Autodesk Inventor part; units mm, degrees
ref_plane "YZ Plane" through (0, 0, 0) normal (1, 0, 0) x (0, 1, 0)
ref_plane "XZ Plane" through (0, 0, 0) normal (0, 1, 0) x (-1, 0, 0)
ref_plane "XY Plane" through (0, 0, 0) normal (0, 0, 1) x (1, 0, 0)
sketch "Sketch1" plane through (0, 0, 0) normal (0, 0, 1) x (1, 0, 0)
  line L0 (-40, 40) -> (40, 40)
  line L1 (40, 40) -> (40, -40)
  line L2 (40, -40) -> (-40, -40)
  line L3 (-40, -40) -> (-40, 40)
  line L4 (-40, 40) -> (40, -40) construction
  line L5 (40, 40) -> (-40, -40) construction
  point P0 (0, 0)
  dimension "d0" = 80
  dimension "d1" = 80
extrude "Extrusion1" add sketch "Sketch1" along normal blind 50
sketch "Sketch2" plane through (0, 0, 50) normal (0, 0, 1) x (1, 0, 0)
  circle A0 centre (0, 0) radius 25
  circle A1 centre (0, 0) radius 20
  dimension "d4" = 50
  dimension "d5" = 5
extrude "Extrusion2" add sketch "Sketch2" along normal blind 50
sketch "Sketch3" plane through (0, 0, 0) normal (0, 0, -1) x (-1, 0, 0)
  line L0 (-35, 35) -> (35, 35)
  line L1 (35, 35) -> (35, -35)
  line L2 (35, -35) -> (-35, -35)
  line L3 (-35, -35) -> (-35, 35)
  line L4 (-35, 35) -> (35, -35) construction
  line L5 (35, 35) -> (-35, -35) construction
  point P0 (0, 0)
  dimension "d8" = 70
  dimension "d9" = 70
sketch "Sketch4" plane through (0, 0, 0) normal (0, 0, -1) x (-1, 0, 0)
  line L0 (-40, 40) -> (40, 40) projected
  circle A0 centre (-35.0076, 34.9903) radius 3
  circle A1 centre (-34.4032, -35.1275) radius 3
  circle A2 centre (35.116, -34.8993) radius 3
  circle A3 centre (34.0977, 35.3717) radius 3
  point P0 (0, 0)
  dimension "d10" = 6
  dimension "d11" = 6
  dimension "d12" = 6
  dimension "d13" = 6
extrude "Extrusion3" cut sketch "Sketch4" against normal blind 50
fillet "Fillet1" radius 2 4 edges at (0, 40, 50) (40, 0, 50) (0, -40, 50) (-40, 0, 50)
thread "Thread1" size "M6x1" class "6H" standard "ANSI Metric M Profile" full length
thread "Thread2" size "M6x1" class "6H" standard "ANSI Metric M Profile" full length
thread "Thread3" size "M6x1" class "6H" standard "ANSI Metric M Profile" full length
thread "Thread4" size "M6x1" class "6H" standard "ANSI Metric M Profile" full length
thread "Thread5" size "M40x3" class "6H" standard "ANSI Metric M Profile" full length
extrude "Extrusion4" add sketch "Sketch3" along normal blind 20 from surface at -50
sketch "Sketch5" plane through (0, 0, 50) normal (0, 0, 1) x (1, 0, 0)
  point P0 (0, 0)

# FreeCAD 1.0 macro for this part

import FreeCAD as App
import Part
import Sketcher

V = App.Vector
Q = App.Units.Quantity


def edges_at(feature, points):
    """Names of the edges that pass closest to the given points."""
    edges = feature.Shape.Edges
    near = lambda p: min(range(len(edges)), key=lambda i: edges[i].distToShape(Part.Vertex(*p))[0])
    return sorted({f"Edge{near(p) + 1}" for p in points})


def add_polygon(sketch, points):
    """Adds a closed chain of lines whose ends are joined by coincident constraints."""
    first, n = sketch.GeometryCount, len(points)
    for a, b in zip(points, points[1:] + points[:1]):
        sketch.addGeometry(Part.LineSegment(App.Vector(*a, 0), App.Vector(*b, 0)), False)
    for i in range(n):
        sketch.addConstraint(Sketcher.Constraint("Coincident", first + i, 2, first + (i + 1) % n, 1))

doc = App.newDocument("Part")
params = doc.addObject("Spreadsheet::Sheet", "Params")
for row, (alias, value) in enumerate([
    ("sketch1_width", "80 mm"),
    ("pad1_length", "50 mm"),
    ("sketch2_diameter", "50 mm"),
    ("sketch2_diameter2", "40 mm"),
    ("pad2_length", "50 mm"),
    ("sketch3_diameter", "6 mm"),
    ("pocket1_length", "50 mm"),
    ("fillet_radius", "2 mm"),
    ("sketch4_width", "70 mm"),
    ("pad3_length", "20 mm"),
], start=1):
    params.set(f"A{row}", alias)
    params.set(f"B{row}", "=" + value)
    params.setAlias(f"B{row}", alias)

body = doc.addObject("PartDesign::Body", "Body")

# Sketch on XY plane
sketch1 = doc.addObject("Sketcher::SketchObject", "Sketch")
body.addObject(sketch1)
sketch1.AttachmentSupport = (doc.XY_Plane, [""])
sketch1.MapMode = "FlatFace"
add_polygon(sketch1, [(40, 40), (-40, 40), (-40, -40), (40, -40)])  # lines 0-3
sketch1.addConstraint(Sketcher.Constraint("Horizontal", 0))
sketch1.addConstraint(Sketcher.Constraint("Vertical", 1))
sketch1.addConstraint(Sketcher.Constraint("Horizontal", 2))
sketch1.addConstraint(Sketcher.Constraint("Vertical", 3))
sketch1.addConstraint(Sketcher.Constraint("Symmetric", 0, 2, 2, 2, -1, 1))
sketch1.addConstraint(Sketcher.Constraint("Equal", 2, 1))
sketch1.addConstraint(Sketcher.Constraint("DistanceX", 0, 2, 0, 1, Q("80 mm")))
sketch1.setExpression("Constraints[10]", "Params.sketch1_width")
pad1 = doc.addObject("PartDesign::Pad", "Pad")
body.addObject(pad1)
pad1.Profile = sketch1
pad1.setExpression("Length", "Params.pad1_length")

# Sketch on XY plane
sketch2 = doc.addObject("Sketcher::SketchObject", "Sketch001")
body.addObject(sketch2)
sketch2.AttachmentSupport = (doc.XY_Plane, [""])
sketch2.MapMode = "FlatFace"
sketch2.AttachmentOffset = App.Placement(V(0, 0, 50), App.Rotation())
sketch2.addGeometry(Part.Circle(V(0, 0, 0), V(0, 0, 1), 25), False)
sketch2.addGeometry(Part.Circle(V(0, 0, 0), V(0, 0, 1), 20), False)
sketch2.addConstraint(Sketcher.Constraint("Coincident", 0, 3, -1, 1))
sketch2.addConstraint(Sketcher.Constraint("Coincident", 1, 3, -1, 1))
sketch2.addConstraint(Sketcher.Constraint("Diameter", 0, Q("50 mm")))
sketch2.addConstraint(Sketcher.Constraint("Diameter", 1, Q("40 mm")))
sketch2.setExpression("Constraints[2]", "Params.sketch2_diameter")
sketch2.setExpression("Constraints[3]", "Params.sketch2_diameter2")
pad2 = doc.addObject("PartDesign::Pad", "Pad001")
body.addObject(pad2)
pad2.Profile = sketch2
pad2.setExpression("Length", "Params.pad2_length")

# Sketch on XY plane
sketch3 = doc.addObject("Sketcher::SketchObject", "Sketch002")
body.addObject(sketch3)
sketch3.AttachmentSupport = (doc.XY_Plane, [""])
sketch3.MapMode = "FlatFace"
sketch3.addGeometry(Part.Circle(V(35, 35, 0), V(0, 0, 1), 3), False)
sketch3.addGeometry(Part.Circle(V(34.4, -35.1, 0), V(0, 0, 1), 3), False)
sketch3.addGeometry(Part.Circle(V(-35.1, -34.9, 0), V(0, 0, 1), 3), False)
sketch3.addGeometry(Part.Circle(V(-34.1, 35.4, 0), V(0, 0, 1), 3), False)
sketch3.addConstraint(Sketcher.Constraint("Equal", 0, 1))
sketch3.addConstraint(Sketcher.Constraint("Equal", 1, 2))
sketch3.addConstraint(Sketcher.Constraint("Equal", 2, 3))
sketch3.addConstraint(Sketcher.Constraint("Diameter", 0, Q("6 mm")))
sketch3.addConstraint(Sketcher.Constraint("DistanceX", 2, 3, -1, 1, Q("35.116 mm")))
sketch3.addConstraint(Sketcher.Constraint("DistanceY", 2, 3, 3, 3, Q("70.271 mm")))
sketch3.addConstraint(Sketcher.Constraint("DistanceX", 3, 3, 1, 3, Q("68.501 mm")))
sketch3.addConstraint(Sketcher.Constraint("DistanceX", -1, 1, 0, 3, Q("35.0076 mm")))
sketch3.addConstraint(Sketcher.Constraint("DistanceY", -1, 1, 0, 3, Q("34.9903 mm")))
sketch3.addConstraint(Sketcher.Constraint("DistanceX", -1, 1, 1, 3, Q("34.4032 mm")))
sketch3.addConstraint(Sketcher.Constraint("DistanceY", 1, 3, -1, 1, Q("35.1275 mm")))
sketch3.addConstraint(Sketcher.Constraint("DistanceY", 2, 3, -1, 1, Q("34.8993 mm")))
sketch3.setExpression("Constraints[3]", "Params.sketch3_diameter")
pocket1 = doc.addObject("PartDesign::Pocket", "Pocket")
body.addObject(pocket1)
pocket1.Profile = sketch3
pocket1.setExpression("Length", "Params.pocket1_length")
pocket1.Reversed = True
doc.recompute()

fillet = doc.addObject("PartDesign::Fillet", "Fillet")
body.addObject(fillet)
fillet.Base = (pocket1, edges_at(pocket1, [
    (0, 40, 50),
    (40, 0, 50),
    (0, -40, 50),
    (-40, 0, 50),
]))
fillet.setExpression("Radius", "Params.fillet_radius")

# Sketch on XY plane
sketch4 = doc.addObject("Sketcher::SketchObject", "Sketch003")
body.addObject(sketch4)
sketch4.AttachmentSupport = (doc.XY_Plane, [""])
sketch4.MapMode = "FlatFace"
sketch4.AttachmentOffset = App.Placement(V(0, 0, 50), App.Rotation())
add_polygon(sketch4, [(-35, 35), (35, 35), (35, -35), (-35, -35)])  # lines 0-3
sketch4.addConstraint(Sketcher.Constraint("Horizontal", 0))
sketch4.addConstraint(Sketcher.Constraint("Vertical", 1))
sketch4.addConstraint(Sketcher.Constraint("Horizontal", 2))
sketch4.addConstraint(Sketcher.Constraint("Vertical", 3))
sketch4.addConstraint(Sketcher.Constraint("Symmetric", 0, 2, 2, 2, -1, 1))
sketch4.addConstraint(Sketcher.Constraint("Equal", 2, 1))
sketch4.addConstraint(Sketcher.Constraint("DistanceX", 0, 1, 0, 2, Q("70 mm")))
sketch4.setExpression("Constraints[10]", "Params.sketch4_width")
pad3 = doc.addObject("PartDesign::Pad", "Pad002")
body.addObject(pad3)
pad3.Profile = sketch4
pad3.setExpression("Length", "Params.pad3_length")
pad3.Reversed = True

doc.recompute()
